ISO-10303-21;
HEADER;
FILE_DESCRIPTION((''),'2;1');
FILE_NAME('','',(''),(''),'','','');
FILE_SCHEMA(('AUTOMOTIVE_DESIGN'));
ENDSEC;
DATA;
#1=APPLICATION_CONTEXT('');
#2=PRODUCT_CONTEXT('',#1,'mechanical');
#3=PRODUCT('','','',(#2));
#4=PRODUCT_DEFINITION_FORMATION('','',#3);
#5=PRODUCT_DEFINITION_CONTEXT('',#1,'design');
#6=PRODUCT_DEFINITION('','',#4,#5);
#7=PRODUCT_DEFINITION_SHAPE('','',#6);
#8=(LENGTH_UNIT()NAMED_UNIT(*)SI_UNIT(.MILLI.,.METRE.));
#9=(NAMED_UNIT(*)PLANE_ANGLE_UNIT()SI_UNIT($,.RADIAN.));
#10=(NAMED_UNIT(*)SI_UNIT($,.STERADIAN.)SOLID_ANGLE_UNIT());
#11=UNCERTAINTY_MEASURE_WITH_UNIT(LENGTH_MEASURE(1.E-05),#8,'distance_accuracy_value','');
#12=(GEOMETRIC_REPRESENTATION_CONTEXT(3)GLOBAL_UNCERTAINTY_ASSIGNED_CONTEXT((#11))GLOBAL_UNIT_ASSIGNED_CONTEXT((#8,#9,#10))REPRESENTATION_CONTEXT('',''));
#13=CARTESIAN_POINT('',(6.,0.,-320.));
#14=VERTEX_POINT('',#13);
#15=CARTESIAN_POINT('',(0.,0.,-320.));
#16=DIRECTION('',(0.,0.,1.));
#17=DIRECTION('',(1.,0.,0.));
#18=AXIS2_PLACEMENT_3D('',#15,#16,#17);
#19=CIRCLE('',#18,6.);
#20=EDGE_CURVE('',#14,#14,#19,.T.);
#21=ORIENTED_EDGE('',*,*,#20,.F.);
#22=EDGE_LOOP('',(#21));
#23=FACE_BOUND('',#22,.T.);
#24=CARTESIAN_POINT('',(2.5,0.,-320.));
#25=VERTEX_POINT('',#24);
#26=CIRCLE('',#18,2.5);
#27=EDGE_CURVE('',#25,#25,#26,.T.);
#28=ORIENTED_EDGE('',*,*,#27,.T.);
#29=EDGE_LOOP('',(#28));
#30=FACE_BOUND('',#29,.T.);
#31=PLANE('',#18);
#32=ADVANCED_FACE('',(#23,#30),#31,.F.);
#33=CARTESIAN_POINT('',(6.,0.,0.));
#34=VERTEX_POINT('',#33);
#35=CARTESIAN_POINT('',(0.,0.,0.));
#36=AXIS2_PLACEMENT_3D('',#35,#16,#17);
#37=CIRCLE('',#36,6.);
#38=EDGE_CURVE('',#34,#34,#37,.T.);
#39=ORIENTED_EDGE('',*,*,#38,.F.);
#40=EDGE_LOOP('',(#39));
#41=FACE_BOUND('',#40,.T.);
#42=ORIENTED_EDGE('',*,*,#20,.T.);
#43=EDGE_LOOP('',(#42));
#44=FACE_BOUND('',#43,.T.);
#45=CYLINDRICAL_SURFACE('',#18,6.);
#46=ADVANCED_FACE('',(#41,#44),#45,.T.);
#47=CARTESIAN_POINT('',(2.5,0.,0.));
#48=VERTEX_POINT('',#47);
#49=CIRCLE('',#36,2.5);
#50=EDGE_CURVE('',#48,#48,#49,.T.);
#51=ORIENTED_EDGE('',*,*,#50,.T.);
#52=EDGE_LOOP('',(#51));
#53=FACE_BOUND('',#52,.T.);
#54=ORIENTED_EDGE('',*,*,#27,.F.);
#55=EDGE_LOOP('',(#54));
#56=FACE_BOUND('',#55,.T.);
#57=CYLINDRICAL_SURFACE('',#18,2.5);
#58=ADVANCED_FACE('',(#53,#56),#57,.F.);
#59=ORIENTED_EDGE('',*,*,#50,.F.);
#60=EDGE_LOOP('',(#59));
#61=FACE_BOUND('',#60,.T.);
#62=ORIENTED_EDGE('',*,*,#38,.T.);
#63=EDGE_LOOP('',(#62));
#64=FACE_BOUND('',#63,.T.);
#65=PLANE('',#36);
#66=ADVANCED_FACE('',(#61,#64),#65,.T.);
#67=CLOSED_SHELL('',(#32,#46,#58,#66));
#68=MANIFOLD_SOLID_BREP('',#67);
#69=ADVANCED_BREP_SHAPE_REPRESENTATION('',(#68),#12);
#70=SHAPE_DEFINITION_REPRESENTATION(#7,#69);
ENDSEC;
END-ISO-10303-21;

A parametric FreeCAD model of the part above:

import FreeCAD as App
import Part
import Sketcher

doc = App.newDocument("Part")
params = doc.addObject("Spreadsheet::Sheet", "Params")
for row, (alias, value) in enumerate([
    ("sketch1_diameter", "12 mm"),
    ("pad1_length", "320 mm"),
    ("sketch2_diameter", "5 mm"),
], start=1):
    params.set(f"A{row}", alias)
    params.set(f"B{row}", "=" + value)
    params.setAlias(f"B{row}", alias)

body = doc.addObject("PartDesign::Body", "Body")

sketch1 = doc.addObject("Sketcher::SketchObject", "Sketch")
body.addObject(sketch1)
sketch1.AttachmentSupport = (doc.XY_Plane, [""])
sketch1.MapMode = "FlatFace"
sketch1.addGeometry(Part.Circle(App.Vector(0, 0, 0), App.Vector(0, 0, 1), 6), False)
sketch1.addGeometry(Part.Circle(App.Vector(0, 0, 0), App.Vector(0, 0, 1), 0.0005), False)
sketch1.addConstraint(Sketcher.Constraint("Coincident", 0, 3, -1, 1))
sketch1.addConstraint(Sketcher.Constraint("Coincident", 1, 3, -1, 1))
sketch1.addConstraint(Sketcher.Constraint("Diameter", 0, 12.0))
sketch1.addConstraint(Sketcher.Constraint("Diameter", 1, 0.001))
sketch1.setExpression("Constraints[2]", "Params.sketch1_diameter")
pad1 = doc.addObject("PartDesign::Pad", "Pad")
body.addObject(pad1)
pad1.Profile = sketch1
pad1.setExpression("Length", "Params.pad1_length")
pad1.Reversed = True

sketch2 = doc.addObject("Sketcher::SketchObject", "Sketch001")
body.addObject(sketch2)
sketch2.AttachmentSupport = (doc.XY_Plane, [""])
sketch2.MapMode = "FlatFace"
sketch2.addGeometry(Part.Circle(App.Vector(0, 0, 0), App.Vector(0, 0, 1), 2.5), False)
sketch2.addConstraint(Sketcher.Constraint("Coincident", 0, 3, -1, 1))
sketch2.addConstraint(Sketcher.Constraint("Diameter", 0, 5.0))
sketch2.setExpression("Constraints[1]", "Params.sketch2_diameter")
pocket1 = doc.addObject("PartDesign::Pocket", "Pocket")
body.addObject(pocket1)
pocket1.Profile = sketch2
pocket1.Type = "ThroughAll"

doc.recompute()
